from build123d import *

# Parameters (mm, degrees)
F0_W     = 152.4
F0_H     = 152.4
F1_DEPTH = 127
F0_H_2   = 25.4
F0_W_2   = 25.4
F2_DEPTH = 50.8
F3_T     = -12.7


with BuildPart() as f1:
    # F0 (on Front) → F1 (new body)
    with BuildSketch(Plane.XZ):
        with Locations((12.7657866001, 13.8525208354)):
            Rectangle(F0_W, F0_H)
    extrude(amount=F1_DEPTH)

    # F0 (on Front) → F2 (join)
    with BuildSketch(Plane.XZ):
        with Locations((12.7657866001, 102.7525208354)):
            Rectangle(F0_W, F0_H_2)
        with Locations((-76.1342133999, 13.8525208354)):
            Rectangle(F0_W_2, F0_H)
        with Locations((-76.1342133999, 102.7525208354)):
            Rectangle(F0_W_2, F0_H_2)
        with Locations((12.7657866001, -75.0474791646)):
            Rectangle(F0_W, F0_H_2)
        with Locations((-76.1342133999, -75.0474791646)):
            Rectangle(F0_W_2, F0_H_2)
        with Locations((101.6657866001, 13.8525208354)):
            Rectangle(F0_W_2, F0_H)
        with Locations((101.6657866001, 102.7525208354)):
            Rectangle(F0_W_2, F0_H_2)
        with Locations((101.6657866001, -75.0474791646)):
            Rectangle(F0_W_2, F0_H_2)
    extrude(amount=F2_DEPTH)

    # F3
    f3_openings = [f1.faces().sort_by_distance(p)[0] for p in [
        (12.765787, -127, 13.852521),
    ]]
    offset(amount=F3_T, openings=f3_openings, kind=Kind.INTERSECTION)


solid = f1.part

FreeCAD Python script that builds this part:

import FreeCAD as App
import Part
import Sketcher

V = App.Vector
Q = App.Units.Quantity


def faces_at(feature, points):
    """Names of the faces that lie closest to the given points."""
    faces = feature.Shape.Faces
    near = lambda p: min(range(len(faces)), key=lambda i: faces[i].distToShape(Part.Vertex(*p))[0])
    return sorted({f"Face{near(p) + 1}" for p in points})

doc = App.newDocument("Part")
body = doc.addObject("PartDesign::Body", "Body")

# Sketch on XZ plane
sketch1 = doc.addObject("Sketcher::SketchObject", "Sketch")
body.addObject(sketch1)
sketch1.AttachmentSupport = (doc.XZ_Plane, [""])
sketch1.MapMode = "FlatFace"
sketch1.addGeometry([
    Part.LineSegment(V(-63, 90, 0), V(-63, -62, 0)),
    Part.LineSegment(V(-63, -62, 0), V(89, -62, 0)),
    Part.LineSegment(V(89, -62, 0), V(89, 90, 0)),
    Part.LineSegment(V(89, 90, 0), V(-63, 90, 0)),
], False)
sketch1.addConstraint([
    Sketcher.Constraint("Coincident", 0, 2, 1, 1),
    Sketcher.Constraint("Coincident", 1, 2, 2, 1),
    Sketcher.Constraint("Coincident", 2, 2, 3, 1),
    Sketcher.Constraint("Coincident", 3, 2, 0, 1),
    Sketcher.Constraint("Vertical", 0),
    Sketcher.Constraint("Horizontal", 1),
    Sketcher.Constraint("Vertical", 2),
    Sketcher.Constraint("Horizontal", 3),
    Sketcher.Constraint("Equal", 3, 0),
    Sketcher.Constraint("DistanceX", 1, 1, 1, 2, Q("6 in")),
    Sketcher.Constraint("DistanceY", 0, 2, -1, 1, 62.347479),
    Sketcher.Constraint("DistanceX", 0, 2, -1, 1, 63.434213),
])
pad1 = doc.addObject("PartDesign::Pad", "Pad")
body.addObject(pad1)
pad1.Profile = sketch1
pad1.Length = Q("5 in")

# Sketch on XZ plane
sketch2 = doc.addObject("Sketcher::SketchObject", "Sketch001")
body.addObject(sketch2)
sketch2.AttachmentSupport = (doc.XZ_Plane, [""])
sketch2.MapMode = "FlatFace"
sketch2.addGeometry([
    Part.LineSegment(V(-89, -88, 0), V(114, -88, 0)),  # 0
    Part.LineSegment(V(114, -88, 0), V(114, 115, 0)),  # 1
    Part.LineSegment(V(114, 115, 0), V(-89, 115, 0)),  # 2
    Part.LineSegment(V(-89, 115, 0), V(-89, -88, 0)),  # 3
    Part.LineSegment(V(89, 90, 0), V(89, -62, 0)),  # 4
    Part.LineSegment(V(89, -62, 0), V(-63, -62, 0)),  # 5
    Part.LineSegment(V(-63, -62, 0), V(-63, 90, 0)),  # 6
    Part.LineSegment(V(-63, 90, 0), V(89, 90, 0)),  # 7
], False)
sketch2.addConstraint([
    Sketcher.Constraint("Coincident", 0, 2, 1, 1),
    Sketcher.Constraint("Coincident", 1, 2, 2, 1),
    Sketcher.Constraint("Coincident", 2, 2, 3, 1),
    Sketcher.Constraint("Coincident", 3, 2, 0, 1),
    Sketcher.Constraint("Coincident", 4, 2, 5, 1),
    Sketcher.Constraint("Coincident", 5, 2, 6, 1),
    Sketcher.Constraint("Coincident", 6, 2, 7, 1),
    Sketcher.Constraint("Coincident", 7, 2, 4, 1),
    Sketcher.Constraint("Horizontal", 0),
    Sketcher.Constraint("Vertical", 1),
    Sketcher.Constraint("Horizontal", 2),
    Sketcher.Constraint("Vertical", 3),
    Sketcher.Constraint("Vertical", 4),
    Sketcher.Constraint("Horizontal", 5),
    Sketcher.Constraint("Vertical", 6),
    Sketcher.Constraint("Horizontal", 7),
    Sketcher.Constraint("Equal", 2, 1),
    Sketcher.Constraint("Equal", 7, 4),
    Sketcher.Constraint("DistanceX", 0, 1, 0, 2, Q("8 in")),
    Sketcher.Constraint("DistanceX", 5, 2, 5, 1, Q("6 in")),
    Sketcher.Constraint("DistanceX", 4, 2, 0, 2, Q("1 in")),
    Sketcher.Constraint("DistanceY", 0, 2, 4, 2, Q("1 in")),
    Sketcher.Constraint("DistanceY", 0, 2, -1, 1, 87.747479),
    Sketcher.Constraint("DistanceX", -1, 1, 0, 2, 114.365787),
])
pad2 = doc.addObject("PartDesign::Pad", "Pad001")
body.addObject(pad2)
pad2.Profile = sketch2
pad2.Length = Q("2 in")
doc.recompute()

thickness = doc.addObject("PartDesign::Thickness", "Thickness")
body.addObject(thickness)
thickness.Base = (pad2, faces_at(pad2, [(12.766, -127, 13.853)]))
thickness.Value = Q("0.5 in")
thickness.Reversed = True
thickness.Join = "Intersection"

doc.recompute()
